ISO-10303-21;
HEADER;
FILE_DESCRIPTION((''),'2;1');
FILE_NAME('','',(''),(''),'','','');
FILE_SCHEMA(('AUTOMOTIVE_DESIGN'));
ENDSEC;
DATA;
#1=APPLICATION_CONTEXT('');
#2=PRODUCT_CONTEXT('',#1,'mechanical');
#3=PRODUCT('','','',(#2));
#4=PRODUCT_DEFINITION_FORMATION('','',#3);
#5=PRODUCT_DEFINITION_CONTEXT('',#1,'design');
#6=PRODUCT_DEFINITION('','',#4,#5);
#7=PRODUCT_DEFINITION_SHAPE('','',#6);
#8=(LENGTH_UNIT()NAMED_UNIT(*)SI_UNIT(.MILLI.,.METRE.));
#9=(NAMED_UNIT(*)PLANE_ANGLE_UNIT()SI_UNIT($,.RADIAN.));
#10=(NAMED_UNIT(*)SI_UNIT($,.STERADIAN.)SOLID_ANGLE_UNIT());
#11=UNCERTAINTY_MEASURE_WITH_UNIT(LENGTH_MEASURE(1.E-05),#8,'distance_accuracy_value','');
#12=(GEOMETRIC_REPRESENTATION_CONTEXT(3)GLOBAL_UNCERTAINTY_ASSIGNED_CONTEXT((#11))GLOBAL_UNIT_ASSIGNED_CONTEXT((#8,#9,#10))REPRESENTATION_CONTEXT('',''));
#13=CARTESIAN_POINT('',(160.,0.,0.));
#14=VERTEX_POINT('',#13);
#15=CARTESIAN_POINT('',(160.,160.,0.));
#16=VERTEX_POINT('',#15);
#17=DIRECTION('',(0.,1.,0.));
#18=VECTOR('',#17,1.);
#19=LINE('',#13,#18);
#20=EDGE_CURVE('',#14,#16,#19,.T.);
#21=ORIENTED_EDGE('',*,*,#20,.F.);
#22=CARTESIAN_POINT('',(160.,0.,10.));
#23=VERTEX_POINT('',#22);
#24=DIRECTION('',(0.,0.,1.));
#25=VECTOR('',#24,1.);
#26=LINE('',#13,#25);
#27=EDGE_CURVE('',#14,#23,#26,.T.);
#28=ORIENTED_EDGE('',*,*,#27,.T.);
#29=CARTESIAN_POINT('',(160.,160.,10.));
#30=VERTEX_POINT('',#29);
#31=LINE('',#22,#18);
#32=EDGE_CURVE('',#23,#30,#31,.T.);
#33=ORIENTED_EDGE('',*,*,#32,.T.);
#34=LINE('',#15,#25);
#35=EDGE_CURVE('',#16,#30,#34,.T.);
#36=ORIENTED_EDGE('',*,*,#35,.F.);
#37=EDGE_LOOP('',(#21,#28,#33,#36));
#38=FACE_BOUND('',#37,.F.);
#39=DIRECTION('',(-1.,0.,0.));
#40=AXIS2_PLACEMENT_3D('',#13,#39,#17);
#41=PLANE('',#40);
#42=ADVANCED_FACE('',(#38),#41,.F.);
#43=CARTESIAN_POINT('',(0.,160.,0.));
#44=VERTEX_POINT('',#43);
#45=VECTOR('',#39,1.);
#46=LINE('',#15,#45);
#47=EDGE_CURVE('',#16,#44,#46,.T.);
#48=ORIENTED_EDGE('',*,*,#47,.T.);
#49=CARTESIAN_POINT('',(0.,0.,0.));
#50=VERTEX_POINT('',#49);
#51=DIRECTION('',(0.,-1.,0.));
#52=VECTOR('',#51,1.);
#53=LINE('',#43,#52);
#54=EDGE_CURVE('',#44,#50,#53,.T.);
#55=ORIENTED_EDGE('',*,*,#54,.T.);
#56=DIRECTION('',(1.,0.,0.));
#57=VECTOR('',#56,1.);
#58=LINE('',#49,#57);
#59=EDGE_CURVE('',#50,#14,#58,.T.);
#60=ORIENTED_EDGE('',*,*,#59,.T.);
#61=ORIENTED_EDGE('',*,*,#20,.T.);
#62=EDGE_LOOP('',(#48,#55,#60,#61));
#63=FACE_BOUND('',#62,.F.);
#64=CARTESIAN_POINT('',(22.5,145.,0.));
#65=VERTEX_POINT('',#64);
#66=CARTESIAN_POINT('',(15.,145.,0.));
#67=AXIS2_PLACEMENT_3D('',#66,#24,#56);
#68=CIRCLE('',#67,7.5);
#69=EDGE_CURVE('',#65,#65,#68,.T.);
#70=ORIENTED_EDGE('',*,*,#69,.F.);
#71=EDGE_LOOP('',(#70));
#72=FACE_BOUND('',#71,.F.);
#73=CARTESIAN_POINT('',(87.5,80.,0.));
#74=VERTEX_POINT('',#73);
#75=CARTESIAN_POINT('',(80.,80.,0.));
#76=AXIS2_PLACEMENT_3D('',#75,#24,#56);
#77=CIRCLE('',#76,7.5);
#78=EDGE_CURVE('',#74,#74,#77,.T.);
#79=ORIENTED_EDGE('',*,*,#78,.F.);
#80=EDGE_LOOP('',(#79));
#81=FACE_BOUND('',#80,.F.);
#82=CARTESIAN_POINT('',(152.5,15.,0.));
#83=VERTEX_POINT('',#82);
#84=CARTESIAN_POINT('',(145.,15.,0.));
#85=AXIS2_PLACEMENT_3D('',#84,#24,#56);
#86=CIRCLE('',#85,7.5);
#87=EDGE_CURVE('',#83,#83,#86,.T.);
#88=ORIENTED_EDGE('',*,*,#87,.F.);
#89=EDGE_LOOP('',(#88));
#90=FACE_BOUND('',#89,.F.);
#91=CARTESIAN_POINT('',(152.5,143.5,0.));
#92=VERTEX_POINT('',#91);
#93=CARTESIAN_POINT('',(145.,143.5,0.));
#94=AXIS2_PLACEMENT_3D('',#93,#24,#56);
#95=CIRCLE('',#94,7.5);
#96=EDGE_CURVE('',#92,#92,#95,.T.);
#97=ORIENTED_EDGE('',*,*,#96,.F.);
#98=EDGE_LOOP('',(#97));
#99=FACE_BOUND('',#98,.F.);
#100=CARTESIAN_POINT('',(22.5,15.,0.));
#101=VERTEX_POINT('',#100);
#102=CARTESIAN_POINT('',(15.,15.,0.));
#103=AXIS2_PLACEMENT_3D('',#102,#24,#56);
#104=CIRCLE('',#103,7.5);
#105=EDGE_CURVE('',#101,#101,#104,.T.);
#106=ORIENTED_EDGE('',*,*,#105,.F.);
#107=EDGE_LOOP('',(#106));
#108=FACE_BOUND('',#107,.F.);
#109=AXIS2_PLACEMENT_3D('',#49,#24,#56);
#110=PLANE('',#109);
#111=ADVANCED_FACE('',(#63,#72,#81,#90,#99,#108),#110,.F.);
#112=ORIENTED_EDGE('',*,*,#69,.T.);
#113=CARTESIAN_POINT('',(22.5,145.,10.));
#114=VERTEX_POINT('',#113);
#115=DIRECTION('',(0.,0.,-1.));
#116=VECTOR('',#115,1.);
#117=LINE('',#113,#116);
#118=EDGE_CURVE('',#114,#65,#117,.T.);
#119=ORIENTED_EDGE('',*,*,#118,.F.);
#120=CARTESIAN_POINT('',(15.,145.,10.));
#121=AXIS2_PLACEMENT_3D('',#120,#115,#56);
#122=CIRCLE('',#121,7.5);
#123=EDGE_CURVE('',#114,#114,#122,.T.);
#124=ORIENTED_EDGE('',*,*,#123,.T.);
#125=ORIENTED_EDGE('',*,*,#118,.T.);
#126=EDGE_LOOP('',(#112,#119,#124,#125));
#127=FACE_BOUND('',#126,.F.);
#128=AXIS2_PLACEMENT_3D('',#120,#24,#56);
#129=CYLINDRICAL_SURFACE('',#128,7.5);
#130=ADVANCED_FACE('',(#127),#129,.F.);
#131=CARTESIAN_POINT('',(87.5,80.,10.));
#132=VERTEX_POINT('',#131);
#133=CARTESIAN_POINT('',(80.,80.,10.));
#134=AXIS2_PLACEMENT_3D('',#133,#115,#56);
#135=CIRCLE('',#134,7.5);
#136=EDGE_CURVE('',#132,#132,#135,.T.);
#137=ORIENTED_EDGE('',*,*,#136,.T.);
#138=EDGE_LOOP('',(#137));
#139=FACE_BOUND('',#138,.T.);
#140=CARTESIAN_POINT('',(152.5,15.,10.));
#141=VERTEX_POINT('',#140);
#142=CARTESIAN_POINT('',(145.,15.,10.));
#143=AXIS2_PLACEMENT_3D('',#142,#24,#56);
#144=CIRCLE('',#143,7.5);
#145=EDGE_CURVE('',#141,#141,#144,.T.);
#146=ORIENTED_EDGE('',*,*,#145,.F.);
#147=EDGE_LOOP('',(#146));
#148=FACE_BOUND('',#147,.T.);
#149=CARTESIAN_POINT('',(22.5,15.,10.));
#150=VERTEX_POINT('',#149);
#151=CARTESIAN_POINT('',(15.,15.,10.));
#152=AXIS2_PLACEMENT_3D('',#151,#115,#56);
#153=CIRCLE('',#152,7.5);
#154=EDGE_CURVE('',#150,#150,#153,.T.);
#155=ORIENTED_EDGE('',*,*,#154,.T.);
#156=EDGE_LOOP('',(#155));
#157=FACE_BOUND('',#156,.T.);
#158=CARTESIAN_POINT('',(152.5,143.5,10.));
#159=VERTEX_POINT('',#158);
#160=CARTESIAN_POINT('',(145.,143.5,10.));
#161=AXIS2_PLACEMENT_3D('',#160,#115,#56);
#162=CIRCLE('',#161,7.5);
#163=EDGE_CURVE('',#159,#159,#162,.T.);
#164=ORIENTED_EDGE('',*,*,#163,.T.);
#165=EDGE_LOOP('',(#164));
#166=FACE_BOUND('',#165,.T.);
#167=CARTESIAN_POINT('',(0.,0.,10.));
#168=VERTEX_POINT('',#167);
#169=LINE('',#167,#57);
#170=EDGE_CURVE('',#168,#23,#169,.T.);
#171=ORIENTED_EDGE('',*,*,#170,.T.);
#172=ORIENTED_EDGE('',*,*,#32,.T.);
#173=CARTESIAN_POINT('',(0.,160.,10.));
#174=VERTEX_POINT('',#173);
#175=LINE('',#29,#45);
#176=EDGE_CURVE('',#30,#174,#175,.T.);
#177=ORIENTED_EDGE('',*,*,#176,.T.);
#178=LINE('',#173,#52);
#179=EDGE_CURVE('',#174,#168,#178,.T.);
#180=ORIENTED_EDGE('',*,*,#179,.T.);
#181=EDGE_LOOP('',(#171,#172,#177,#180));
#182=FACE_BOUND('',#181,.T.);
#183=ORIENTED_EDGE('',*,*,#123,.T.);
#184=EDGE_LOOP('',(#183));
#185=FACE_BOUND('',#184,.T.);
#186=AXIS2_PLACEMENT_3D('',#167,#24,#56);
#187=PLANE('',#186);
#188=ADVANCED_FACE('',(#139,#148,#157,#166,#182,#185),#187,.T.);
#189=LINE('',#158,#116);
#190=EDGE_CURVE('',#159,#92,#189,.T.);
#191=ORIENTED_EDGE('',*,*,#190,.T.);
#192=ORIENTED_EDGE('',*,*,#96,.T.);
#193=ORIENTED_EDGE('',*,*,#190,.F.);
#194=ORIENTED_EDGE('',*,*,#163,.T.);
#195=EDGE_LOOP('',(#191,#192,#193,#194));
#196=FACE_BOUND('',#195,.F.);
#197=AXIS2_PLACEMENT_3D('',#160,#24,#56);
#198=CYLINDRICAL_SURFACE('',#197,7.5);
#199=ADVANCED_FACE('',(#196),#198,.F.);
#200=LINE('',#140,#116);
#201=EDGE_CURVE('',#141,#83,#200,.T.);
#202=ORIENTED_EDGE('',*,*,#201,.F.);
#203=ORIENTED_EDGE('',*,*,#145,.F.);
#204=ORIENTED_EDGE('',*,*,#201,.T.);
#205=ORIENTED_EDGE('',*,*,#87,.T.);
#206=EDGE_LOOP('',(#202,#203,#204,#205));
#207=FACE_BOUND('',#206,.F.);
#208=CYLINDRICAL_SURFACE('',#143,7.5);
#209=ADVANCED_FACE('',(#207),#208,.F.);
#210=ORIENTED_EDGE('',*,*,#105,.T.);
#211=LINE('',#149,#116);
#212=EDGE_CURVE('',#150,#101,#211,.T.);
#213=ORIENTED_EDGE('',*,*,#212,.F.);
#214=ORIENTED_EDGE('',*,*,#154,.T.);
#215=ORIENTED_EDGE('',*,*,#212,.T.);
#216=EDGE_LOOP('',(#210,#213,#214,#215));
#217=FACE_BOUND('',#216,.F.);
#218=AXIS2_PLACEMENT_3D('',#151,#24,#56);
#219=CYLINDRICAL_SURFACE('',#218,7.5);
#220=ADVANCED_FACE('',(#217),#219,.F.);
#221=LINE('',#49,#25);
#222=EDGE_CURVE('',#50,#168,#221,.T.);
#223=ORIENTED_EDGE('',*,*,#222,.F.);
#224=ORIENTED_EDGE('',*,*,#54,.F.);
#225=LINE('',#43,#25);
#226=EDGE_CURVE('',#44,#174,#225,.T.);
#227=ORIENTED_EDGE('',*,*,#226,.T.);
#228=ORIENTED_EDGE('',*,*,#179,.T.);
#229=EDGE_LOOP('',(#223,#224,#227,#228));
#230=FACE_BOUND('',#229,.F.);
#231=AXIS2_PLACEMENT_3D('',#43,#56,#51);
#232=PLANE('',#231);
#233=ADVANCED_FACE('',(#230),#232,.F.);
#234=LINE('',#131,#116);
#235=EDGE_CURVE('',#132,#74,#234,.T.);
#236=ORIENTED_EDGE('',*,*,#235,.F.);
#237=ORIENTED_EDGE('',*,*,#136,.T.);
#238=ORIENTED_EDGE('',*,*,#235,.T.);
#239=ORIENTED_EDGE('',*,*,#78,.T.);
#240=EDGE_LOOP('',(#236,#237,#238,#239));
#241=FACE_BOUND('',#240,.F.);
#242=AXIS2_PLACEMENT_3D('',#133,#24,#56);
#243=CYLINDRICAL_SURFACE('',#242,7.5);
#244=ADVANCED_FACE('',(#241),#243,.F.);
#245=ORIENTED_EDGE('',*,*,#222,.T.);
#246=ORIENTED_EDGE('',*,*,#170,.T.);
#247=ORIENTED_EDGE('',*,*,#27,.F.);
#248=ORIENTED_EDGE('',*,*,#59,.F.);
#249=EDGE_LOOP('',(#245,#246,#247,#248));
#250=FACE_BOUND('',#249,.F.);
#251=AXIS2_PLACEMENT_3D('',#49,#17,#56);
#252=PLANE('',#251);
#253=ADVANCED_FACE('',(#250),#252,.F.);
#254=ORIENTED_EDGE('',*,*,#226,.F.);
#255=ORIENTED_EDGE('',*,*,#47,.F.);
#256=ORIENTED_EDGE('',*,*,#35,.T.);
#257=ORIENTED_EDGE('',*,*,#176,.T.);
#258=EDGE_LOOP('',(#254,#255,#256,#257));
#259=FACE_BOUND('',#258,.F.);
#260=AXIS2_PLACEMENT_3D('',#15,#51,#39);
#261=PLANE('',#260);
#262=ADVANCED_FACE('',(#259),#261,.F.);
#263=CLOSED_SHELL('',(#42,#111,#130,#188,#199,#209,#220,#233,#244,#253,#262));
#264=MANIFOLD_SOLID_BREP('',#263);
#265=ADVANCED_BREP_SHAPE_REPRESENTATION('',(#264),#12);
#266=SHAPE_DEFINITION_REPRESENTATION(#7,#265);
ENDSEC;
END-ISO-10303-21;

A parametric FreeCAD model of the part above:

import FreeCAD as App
import Part
import Sketcher
from FreeCAD import Vector

doc = App.newDocument("Part")
body = doc.addObject("PartDesign::Body", "Body")

# Sketch on XY plane
sketch1 = body.newObject("Sketcher::SketchObject", "Sketch")
sketch1.AttachmentSupport = (doc.getObject("XY_Plane"), [""])
sketch1.MapMode = "FlatFace"
sketch1.addGeometry([
    Part.LineSegment(Vector(0, 160, 0), Vector(0, 0, 0)),
    Part.LineSegment(Vector(0, 0, 0), Vector(160, 0, 0)),
    Part.LineSegment(Vector(160, 0, 0), Vector(160, 160, 0)),
    Part.LineSegment(Vector(160, 160, 0), Vector(0, 160, 0)),
], False)
sketch1.addConstraint([
    Sketcher.Constraint("Coincident", 0, 2, 1, 1),
    Sketcher.Constraint("Coincident", 1, 2, 2, 1),
    Sketcher.Constraint("Coincident", 2, 2, 3, 1),
    Sketcher.Constraint("Coincident", 3, 2, 0, 1),
    Sketcher.Constraint("Vertical", 0),
    Sketcher.Constraint("Horizontal", 1),
    Sketcher.Constraint("Vertical", 2),
    Sketcher.Constraint("Horizontal", 3),
    Sketcher.Constraint("Coincident", 0, 2, -1, 1),
    Sketcher.Constraint("Equal", 3, 0),
    Sketcher.Constraint("DistanceX", 1, 1, 1, 2, 160.0),
])
pad1 = body.newObject("PartDesign::Pad", "Pad")
pad1.Profile = sketch1
pad1.Length = 10

# Sketch on XY plane
sketch2 = body.newObject("Sketcher::SketchObject", "Sketch001")
sketch2.AttachmentSupport = (doc.getObject("XY_Plane"), [""])
sketch2.MapMode = "FlatFace"
sketch2.AttachmentOffset = App.Placement(Vector(0, 0, 10), App.Rotation())
sketch2.addGeometry([
    Part.Circle(Vector(145, 15, 0), Vector(0, 0, 1), 8),
    Part.Circle(Vector(145, 144, 0), Vector(0, 0, 1), 8),
    Part.Circle(Vector(15, 145, 0), Vector(0, 0, 1), 8),
    Part.Circle(Vector(15, 15, 0), Vector(0, 0, 1), 8),
], False)
sketch2.addConstraint([
    Sketcher.Constraint("Equal", 0, 1),
    Sketcher.Constraint("Equal", 1, 2),
    Sketcher.Constraint("Equal", 2, 3),
    Sketcher.Constraint("Horizontal", 0, 3, 3, 3),
    Sketcher.Constraint("Vertical", 0, 3, 1, 3),
    Sketcher.Constraint("Vertical", 2, 3, 3, 3),
    Sketcher.Constraint("Diameter", 0, 15.0),
    Sketcher.Constraint("DistanceY", -1, 1, 0, 3, 15.0),
    Sketcher.Constraint("DistanceX", -1, 1, 2, 3, 15.0),
    Sketcher.Constraint("DistanceX", -1, 1, 0, 3, 145.0),
    Sketcher.Constraint("DistanceY", -1, 1, 2, 3, 145.0),
    Sketcher.Constraint("DistanceY", -1, 1, 1, 3, 143.5),
])
pocket1 = body.newObject("PartDesign::Pocket", "Pocket")
pocket1.Profile = sketch2
pocket1.Length = 10

# Sketch on XY plane
sketch3 = body.newObject("Sketcher::SketchObject", "Sketch002")
sketch3.AttachmentSupport = (doc.getObject("XY_Plane"), [""])
sketch3.MapMode = "FlatFace"
sketch3.AttachmentOffset = App.Placement(Vector(0, 0, 10), App.Rotation())
sketch3.addGeometry(Part.Circle(Vector(80, 80, 0), Vector(0, 0, 1), 8), False)
sketch3.addConstraint([
    Sketcher.Constraint("Diameter", 0, 15.0),
    Sketcher.Constraint("DistanceX", -1, 1, 0, 3, 80.0),
    Sketcher.Constraint("DistanceY", -1, 1, 0, 3, 80.0),
])
pocket2 = body.newObject("PartDesign::Pocket", "Pocket001")
pocket2.Profile = sketch3
pocket2.Length = 10

doc.recompute()
